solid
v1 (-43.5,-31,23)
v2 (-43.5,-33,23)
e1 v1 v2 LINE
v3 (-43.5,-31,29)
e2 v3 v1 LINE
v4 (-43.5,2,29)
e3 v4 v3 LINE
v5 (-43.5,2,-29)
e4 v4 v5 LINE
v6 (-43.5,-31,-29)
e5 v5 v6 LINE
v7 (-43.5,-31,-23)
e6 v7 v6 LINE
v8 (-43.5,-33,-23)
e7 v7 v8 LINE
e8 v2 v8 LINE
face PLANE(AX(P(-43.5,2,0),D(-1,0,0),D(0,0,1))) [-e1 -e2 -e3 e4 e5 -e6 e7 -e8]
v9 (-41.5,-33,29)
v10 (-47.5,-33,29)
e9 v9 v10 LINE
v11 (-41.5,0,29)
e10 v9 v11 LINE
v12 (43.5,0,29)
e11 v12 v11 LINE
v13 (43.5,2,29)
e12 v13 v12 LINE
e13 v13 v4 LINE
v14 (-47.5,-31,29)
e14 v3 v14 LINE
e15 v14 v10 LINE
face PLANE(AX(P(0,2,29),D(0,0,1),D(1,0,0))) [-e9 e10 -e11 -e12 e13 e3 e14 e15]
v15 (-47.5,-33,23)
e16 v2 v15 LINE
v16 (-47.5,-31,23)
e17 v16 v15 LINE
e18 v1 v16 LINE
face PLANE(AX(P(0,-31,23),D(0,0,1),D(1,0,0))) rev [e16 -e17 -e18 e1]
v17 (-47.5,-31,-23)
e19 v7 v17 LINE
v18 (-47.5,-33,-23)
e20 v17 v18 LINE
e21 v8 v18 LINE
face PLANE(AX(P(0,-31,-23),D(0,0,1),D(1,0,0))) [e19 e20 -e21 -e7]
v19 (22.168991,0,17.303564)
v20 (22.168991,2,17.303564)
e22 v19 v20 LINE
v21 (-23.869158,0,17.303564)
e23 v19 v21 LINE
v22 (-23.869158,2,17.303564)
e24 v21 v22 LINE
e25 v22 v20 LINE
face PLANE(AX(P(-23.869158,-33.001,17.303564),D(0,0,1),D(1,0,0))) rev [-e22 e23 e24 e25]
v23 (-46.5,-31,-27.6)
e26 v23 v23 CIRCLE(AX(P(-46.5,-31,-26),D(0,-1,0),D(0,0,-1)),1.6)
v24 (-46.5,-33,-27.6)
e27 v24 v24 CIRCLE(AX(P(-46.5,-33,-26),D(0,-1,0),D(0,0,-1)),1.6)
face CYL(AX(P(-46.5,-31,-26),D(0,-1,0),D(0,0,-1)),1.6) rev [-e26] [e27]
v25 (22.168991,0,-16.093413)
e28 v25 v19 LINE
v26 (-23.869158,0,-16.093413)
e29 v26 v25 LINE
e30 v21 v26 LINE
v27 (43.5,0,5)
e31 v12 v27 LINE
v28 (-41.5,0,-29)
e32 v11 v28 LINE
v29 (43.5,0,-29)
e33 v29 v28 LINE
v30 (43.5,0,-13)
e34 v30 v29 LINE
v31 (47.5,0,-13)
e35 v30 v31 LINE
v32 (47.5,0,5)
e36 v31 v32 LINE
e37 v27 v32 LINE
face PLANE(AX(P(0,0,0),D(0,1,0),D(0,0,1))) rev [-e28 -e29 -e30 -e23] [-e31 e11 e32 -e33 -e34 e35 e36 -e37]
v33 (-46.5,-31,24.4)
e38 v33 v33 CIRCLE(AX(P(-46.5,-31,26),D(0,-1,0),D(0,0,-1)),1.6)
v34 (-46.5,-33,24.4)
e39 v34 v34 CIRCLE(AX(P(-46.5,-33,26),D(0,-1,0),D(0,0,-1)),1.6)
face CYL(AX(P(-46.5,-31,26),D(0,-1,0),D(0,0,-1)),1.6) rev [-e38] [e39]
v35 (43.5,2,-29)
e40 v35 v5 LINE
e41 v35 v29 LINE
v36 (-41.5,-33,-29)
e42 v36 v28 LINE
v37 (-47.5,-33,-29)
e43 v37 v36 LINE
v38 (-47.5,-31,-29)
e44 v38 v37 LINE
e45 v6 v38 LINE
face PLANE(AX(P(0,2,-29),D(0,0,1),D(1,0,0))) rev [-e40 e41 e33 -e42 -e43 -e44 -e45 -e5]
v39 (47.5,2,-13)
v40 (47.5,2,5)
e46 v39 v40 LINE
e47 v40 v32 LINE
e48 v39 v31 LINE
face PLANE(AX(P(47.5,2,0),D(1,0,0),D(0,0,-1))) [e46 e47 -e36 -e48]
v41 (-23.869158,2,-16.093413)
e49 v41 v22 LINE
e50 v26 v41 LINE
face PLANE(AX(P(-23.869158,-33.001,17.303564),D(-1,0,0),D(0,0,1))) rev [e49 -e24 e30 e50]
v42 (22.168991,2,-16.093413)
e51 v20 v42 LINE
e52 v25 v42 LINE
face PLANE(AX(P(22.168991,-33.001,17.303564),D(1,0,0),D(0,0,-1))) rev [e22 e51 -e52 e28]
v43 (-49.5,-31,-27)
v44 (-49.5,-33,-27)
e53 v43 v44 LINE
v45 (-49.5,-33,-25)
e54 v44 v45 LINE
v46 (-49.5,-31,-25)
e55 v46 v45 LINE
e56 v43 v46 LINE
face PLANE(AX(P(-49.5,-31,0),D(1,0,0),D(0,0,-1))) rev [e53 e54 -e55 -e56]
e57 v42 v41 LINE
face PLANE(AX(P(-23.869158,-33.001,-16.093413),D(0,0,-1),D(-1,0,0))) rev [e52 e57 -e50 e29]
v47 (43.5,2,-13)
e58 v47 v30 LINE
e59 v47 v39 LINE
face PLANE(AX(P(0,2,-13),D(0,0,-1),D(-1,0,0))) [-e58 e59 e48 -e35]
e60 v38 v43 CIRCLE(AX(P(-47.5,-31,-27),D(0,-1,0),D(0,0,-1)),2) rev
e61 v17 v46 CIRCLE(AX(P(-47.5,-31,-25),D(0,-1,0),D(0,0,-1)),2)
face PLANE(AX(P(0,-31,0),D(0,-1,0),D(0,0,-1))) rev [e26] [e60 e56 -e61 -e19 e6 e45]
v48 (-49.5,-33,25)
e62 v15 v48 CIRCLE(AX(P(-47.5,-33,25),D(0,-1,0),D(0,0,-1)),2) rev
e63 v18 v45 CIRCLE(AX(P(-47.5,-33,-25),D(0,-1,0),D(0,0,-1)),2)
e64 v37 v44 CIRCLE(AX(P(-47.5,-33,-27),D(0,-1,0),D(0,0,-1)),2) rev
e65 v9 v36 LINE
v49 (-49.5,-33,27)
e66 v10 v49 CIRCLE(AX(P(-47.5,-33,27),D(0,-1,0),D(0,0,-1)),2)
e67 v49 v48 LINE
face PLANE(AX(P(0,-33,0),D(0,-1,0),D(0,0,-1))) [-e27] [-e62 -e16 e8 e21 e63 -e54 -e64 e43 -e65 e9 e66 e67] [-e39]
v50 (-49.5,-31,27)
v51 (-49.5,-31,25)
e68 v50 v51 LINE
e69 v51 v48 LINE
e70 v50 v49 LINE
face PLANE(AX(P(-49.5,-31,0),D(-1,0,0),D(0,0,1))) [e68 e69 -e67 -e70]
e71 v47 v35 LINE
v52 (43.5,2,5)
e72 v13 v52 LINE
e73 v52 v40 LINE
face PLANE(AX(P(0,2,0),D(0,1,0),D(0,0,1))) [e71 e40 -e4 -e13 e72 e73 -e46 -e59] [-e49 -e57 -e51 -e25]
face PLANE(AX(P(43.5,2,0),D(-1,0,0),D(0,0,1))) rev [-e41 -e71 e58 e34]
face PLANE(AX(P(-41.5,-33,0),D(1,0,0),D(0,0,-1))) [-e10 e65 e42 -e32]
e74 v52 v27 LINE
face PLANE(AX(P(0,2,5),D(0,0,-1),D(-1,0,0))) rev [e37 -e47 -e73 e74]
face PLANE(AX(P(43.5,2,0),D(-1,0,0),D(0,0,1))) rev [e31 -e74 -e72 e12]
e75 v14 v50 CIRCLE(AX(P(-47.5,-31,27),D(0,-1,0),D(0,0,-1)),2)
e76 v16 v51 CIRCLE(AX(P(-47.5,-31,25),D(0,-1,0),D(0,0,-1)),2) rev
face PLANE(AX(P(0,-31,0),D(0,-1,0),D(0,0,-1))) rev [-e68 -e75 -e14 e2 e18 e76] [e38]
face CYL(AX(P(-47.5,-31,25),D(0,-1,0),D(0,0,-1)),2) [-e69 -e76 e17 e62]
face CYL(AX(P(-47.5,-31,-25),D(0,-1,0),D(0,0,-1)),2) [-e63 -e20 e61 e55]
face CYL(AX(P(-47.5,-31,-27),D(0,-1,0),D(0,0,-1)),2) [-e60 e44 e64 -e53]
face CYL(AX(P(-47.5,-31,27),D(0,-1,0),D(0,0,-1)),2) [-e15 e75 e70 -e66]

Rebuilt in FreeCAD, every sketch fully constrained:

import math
import FreeCAD as App
import Part
import Sketcher

doc = App.newDocument("Part")
params = doc.addObject("Spreadsheet::Sheet", "Params")
for row, (alias, value) in enumerate([
    ("sketch1_width", "87 mm"),
    ("sketch1_width2", "4 mm"),
    ("sketch1_height", "58 mm"),
    ("sketch1_height2", "24 mm"),
    ("sketch1_height3", "18 mm"),
    ("pad1_length", "2 mm"),
    ("sketch2_width", "2 mm"),
    ("sketch2_height", "58 mm"),
    ("pad2_length", "33 mm"),
    ("sketch3_radius", "2 mm"),
    ("sketch3_diameter", "3.2 mm"),
    ("sketch3_width", "4 mm"),
    ("sketch3_width2", "6 mm"),
    ("sketch3_height", "46 mm"),
    ("pad3_length", "2 mm"),
], start=1):
    params.set(f"A{row}", alias)
    params.set(f"B{row}", "=" + value)
    params.setAlias(f"B{row}", alias)

body = doc.addObject("PartDesign::Body", "Body")

# Sketch on XZ plane
sketch1 = body.newObject("Sketcher::SketchObject", "Sketch")
sketch1.AttachmentSupport = (doc.getObject("XZ_Plane"), [""])
sketch1.MapMode = "FlatFace"
sketch1.addGeometry(Part.LineSegment(App.Vector(-43.5, -29, 0), App.Vector(-43.5, 29, 0)), False)
sketch1.addGeometry(Part.LineSegment(App.Vector(-43.5, 29, 0), App.Vector(43.5, 29, 0)), False)
sketch1.addGeometry(Part.LineSegment(App.Vector(43.5, 29, 0), App.Vector(43.5, 5, 0)), False)
sketch1.addGeometry(Part.LineSegment(App.Vector(43.5, 5, 0), App.Vector(47.5, 5, 0)), False)
sketch1.addGeometry(Part.LineSegment(App.Vector(47.5, 5, 0), App.Vector(47.5, -13, 0)), False)
sketch1.addGeometry(Part.LineSegment(App.Vector(47.5, -13, 0), App.Vector(43.5, -13, 0)), False)
sketch1.addGeometry(Part.LineSegment(App.Vector(43.5, -13, 0), App.Vector(43.5, -29, 0)), False)
sketch1.addGeometry(Part.LineSegment(App.Vector(43.5, -29, 0), App.Vector(-43.5, -29, 0)), False)
sketch1.addConstraint(Sketcher.Constraint("Coincident", 0, 2, 1, 1))
sketch1.addConstraint(Sketcher.Constraint("Coincident", 1, 2, 2, 1))
sketch1.addConstraint(Sketcher.Constraint("Coincident", 2, 2, 3, 1))
sketch1.addConstraint(Sketcher.Constraint("Coincident", 3, 2, 4, 1))
sketch1.addConstraint(Sketcher.Constraint("Coincident", 4, 2, 5, 1))
sketch1.addConstraint(Sketcher.Constraint("Coincident", 5, 2, 6, 1))
sketch1.addConstraint(Sketcher.Constraint("Coincident", 6, 2, 7, 1))
sketch1.addConstraint(Sketcher.Constraint("Coincident", 7, 2, 0, 1))
sketch1.addConstraint(Sketcher.Constraint("Vertical", 0))
sketch1.addConstraint(Sketcher.Constraint("Horizontal", 1))
sketch1.addConstraint(Sketcher.Constraint("Vertical", 2))
sketch1.addConstraint(Sketcher.Constraint("Horizontal", 3))
sketch1.addConstraint(Sketcher.Constraint("Vertical", 4))
sketch1.addConstraint(Sketcher.Constraint("Horizontal", 5))
sketch1.addConstraint(Sketcher.Constraint("Vertical", 6))
sketch1.addConstraint(Sketcher.Constraint("Horizontal", 7))
sketch1.addConstraint(Sketcher.Constraint("Symmetric", 0, 2, 6, 2, -1, 1))
sketch1.addConstraint(Sketcher.Constraint("Vertical", 2, 2, 5, 2))
sketch1.addConstraint(Sketcher.Constraint("DistanceX", 1, 1, 1, 2, 87.0))
sketch1.addConstraint(Sketcher.Constraint("DistanceX", 3, 1, 3, 2, 4.0))
sketch1.addConstraint(Sketcher.Constraint("DistanceY", 0, 1, 0, 2, 58.0))
sketch1.addConstraint(Sketcher.Constraint("DistanceY", 2, 2, 2, 1, 24.0))
sketch1.addConstraint(Sketcher.Constraint("DistanceY", 4, 2, 4, 1, 18.0))
sketch1.setExpression("Constraints[18]", "Params.sketch1_width")
sketch1.setExpression("Constraints[19]", "Params.sketch1_width2")
sketch1.setExpression("Constraints[20]", "Params.sketch1_height")
sketch1.setExpression("Constraints[21]", "Params.sketch1_height2")
sketch1.setExpression("Constraints[22]", "Params.sketch1_height3")
pad1 = body.newObject("PartDesign::Pad", "Pad")
pad1.Profile = sketch1
pad1.setExpression("Length", "Params.pad1_length")
pad1.Reversed = True

# Sketch on XZ plane
sketch2 = body.newObject("Sketcher::SketchObject", "Sketch001")
sketch2.AttachmentSupport = (doc.getObject("XZ_Plane"), [""])
sketch2.MapMode = "FlatFace"
sketch2.addGeometry(Part.LineSegment(App.Vector(-43.5, 29, 0), App.Vector(-43.5, -29, 0)), False)
sketch2.addGeometry(Part.LineSegment(App.Vector(-43.5, -29, 0), App.Vector(-41.5, -29, 0)), False)
sketch2.addGeometry(Part.LineSegment(App.Vector(-41.5, -29, 0), App.Vector(-41.5, 29, 0)), False)
sketch2.addGeometry(Part.LineSegment(App.Vector(-41.5, 29, 0), App.Vector(-43.5, 29, 0)), False)
sketch2.addConstraint(Sketcher.Constraint("Coincident", 0, 2, 1, 1))
sketch2.addConstraint(Sketcher.Constraint("Coincident", 1, 2, 2, 1))
sketch2.addConstraint(Sketcher.Constraint("Coincident", 2, 2, 3, 1))
sketch2.addConstraint(Sketcher.Constraint("Coincident", 3, 2, 0, 1))
sketch2.addConstraint(Sketcher.Constraint("Vertical", 0))
sketch2.addConstraint(Sketcher.Constraint("Horizontal", 1))
sketch2.addConstraint(Sketcher.Constraint("Vertical", 2))
sketch2.addConstraint(Sketcher.Constraint("Horizontal", 3))
sketch2.addConstraint(Sketcher.Constraint("DistanceX", 1, 1, 1, 2, 2.0))
sketch2.addConstraint(Sketcher.Constraint("DistanceY", 0, 2, 0, 1, 58.0))
sketch2.addConstraint(Sketcher.Constraint("DistanceY", 0, 2, -1, 1, 29.0))
sketch2.addConstraint(Sketcher.Constraint("DistanceX", 0, 2, -1, 1, 43.5))
sketch2.setExpression("Constraints[8]", "Params.sketch2_width")
sketch2.setExpression("Constraints[9]", "Params.sketch2_height")
pad2 = body.newObject("PartDesign::Pad", "Pad001")
pad2.Profile = sketch2
pad2.setExpression("Length", "Params.pad2_length")

# Sketch on XZ plane
sketch3 = body.newObject("Sketcher::SketchObject", "Sketch002")
sketch3.AttachmentSupport = (doc.getObject("XZ_Plane"), [""])
sketch3.MapMode = "FlatFace"
sketch3.AttachmentOffset = App.Placement(App.Vector(0, 0, 33), App.Rotation())
sketch3.addGeometry(Part.LineSegment(App.Vector(-47.5, 23, 0), App.Vector(-43.5, 23, 0)), False)
sketch3.addGeometry(Part.LineSegment(App.Vector(-43.5, 23, 0), App.Vector(-43.5, -23, 0)), False)
sketch3.addGeometry(Part.LineSegment(App.Vector(-43.5, -23, 0), App.Vector(-47.5, -23, 0)), False)
sketch3.addGeometry(Part.ArcOfCircle(Part.Circle(App.Vector(-47.5, -25, 0), App.Vector(0, 0, 1), 2), math.radians(90), math.radians(180)), False)
sketch3.addGeometry(Part.LineSegment(App.Vector(-49.5, -25, 0), App.Vector(-49.5, -27, 0)), False)
sketch3.addGeometry(Part.ArcOfCircle(Part.Circle(App.Vector(-47.5, -27, 0), App.Vector(0, 0, 1), 2), math.radians(-180), math.radians(-90)), False)
sketch3.addGeometry(Part.LineSegment(App.Vector(-47.5, -29, 0), App.Vector(-41.5, -29, 0)), False)
sketch3.addGeometry(Part.LineSegment(App.Vector(-41.5, -29, 0), App.Vector(-41.5, 29, 0)), False)
sketch3.addGeometry(Part.LineSegment(App.Vector(-41.5, 29, 0), App.Vector(-47.5, 29, 0)), False)
sketch3.addGeometry(Part.ArcOfCircle(Part.Circle(App.Vector(-47.5, 27, 0), App.Vector(0, 0, 1), 2), math.radians(90), math.radians(180)), False)
sketch3.addGeometry(Part.LineSegment(App.Vector(-49.5, 27, 0), App.Vector(-49.5, 25, 0)), False)
sketch3.addGeometry(Part.ArcOfCircle(Part.Circle(App.Vector(-47.5, 25, 0), App.Vector(0, 0, 1), 2), math.radians(-180), math.radians(-90)), False)
sketch3.addGeometry(Part.Circle(App.Vector(-46.5, 26, 0), App.Vector(0, 0, 1), 1.6), False)
sketch3.addGeometry(Part.Circle(App.Vector(-46.5, -26, 0), App.Vector(0, 0, 1), 1.6), False)
sketch3.addConstraint(Sketcher.Constraint("Coincident", 0, 2, 1, 1))
sketch3.addConstraint(Sketcher.Constraint("Coincident", 1, 2, 2, 1))
sketch3.addConstraint(Sketcher.Constraint("Tangent", 2, 2, 3, 1))
sketch3.addConstraint(Sketcher.Constraint("Tangent", 3, 2, 4, 1))
sketch3.addConstraint(Sketcher.Constraint("Tangent", 4, 2, 5, 1))
sketch3.addConstraint(Sketcher.Constraint("Tangent", 5, 2, 6, 1))
sketch3.addConstraint(Sketcher.Constraint("Coincident", 6, 2, 7, 1))
sketch3.addConstraint(Sketcher.Constraint("Coincident", 7, 2, 8, 1))
sketch3.addConstraint(Sketcher.Constraint("Tangent", 8, 2, 9, 1))
sketch3.addConstraint(Sketcher.Constraint("Tangent", 9, 2, 10, 1))
sketch3.addConstraint(Sketcher.Constraint("Tangent", 10, 2, 11, 1))
sketch3.addConstraint(Sketcher.Constraint("Tangent", 11, 2, 0, 1))
sketch3.addConstraint(Sketcher.Constraint("Horizontal", 0))
sketch3.addConstraint(Sketcher.Constraint("Vertical", 1))
sketch3.addConstraint(Sketcher.Constraint("Horizontal", 2))
sketch3.addConstraint(Sketcher.Constraint("Vertical", 4))
sketch3.addConstraint(Sketcher.Constraint("Horizontal", 6))
sketch3.addConstraint(Sketcher.Constraint("Vertical", 7))
sketch3.addConstraint(Sketcher.Constraint("Horizontal", 8))
sketch3.addConstraint(Sketcher.Constraint("Vertical", 10))
sketch3.addConstraint(Sketcher.Constraint("Equal", 3, 5))
sketch3.addConstraint(Sketcher.Constraint("Equal", 5, 9))
sketch3.addConstraint(Sketcher.Constraint("Equal", 9, 11))
sketch3.addConstraint(Sketcher.Constraint("Equal", 12, 13))
sketch3.addConstraint(Sketcher.Constraint("Symmetric", 5, 3, 9, 3, -1))
sketch3.addConstraint(Sketcher.Constraint("Symmetric", 12, 3, 13, 3, -1))
sketch3.addConstraint(Sketcher.Constraint("Equal", 4, 10))
sketch3.addConstraint(Sketcher.Constraint("Radius", 3, 2.0))
sketch3.addConstraint(Sketcher.Constraint("Diameter", 12, 3.2))
sketch3.addConstraint(Sketcher.Constraint("DistanceX", 0, 1, 0, 2, 4.0))
sketch3.addConstraint(Sketcher.Constraint("DistanceX", 6, 1, 6, 2, 6.0))
sketch3.addConstraint(Sketcher.Constraint("DistanceY", 1, 2, 1, 1, 46.0))
sketch3.addConstraint(Sketcher.Constraint("DistanceY", 4, 2, 4, 1, 2.0))
sketch3.addConstraint(Sketcher.Constraint("DistanceY", -1, 1, 12, 3, 26.0))
sketch3.addConstraint(Sketcher.Constraint("DistanceX", 9, 3, 12, 3, 1.0))
sketch3.addConstraint(Sketcher.Constraint("DistanceX", 3, 3, -1, 1, 47.5))
sketch3.setExpression("Constraints[27]", "Params.sketch3_radius")
sketch3.setExpression("Constraints[28]", "Params.sketch3_diameter")
sketch3.setExpression("Constraints[29]", "Params.sketch3_width")
sketch3.setExpression("Constraints[30]", "Params.sketch3_width2")
sketch3.setExpression("Constraints[31]", "Params.sketch3_height")
pad3 = body.newObject("PartDesign::Pad", "Pad002")
pad3.Profile = sketch3
pad3.setExpression("Length", "Params.pad3_length")
pad3.Reversed = True

# Sketch on XZ plane
sketch4 = body.newObject("Sketcher::SketchObject", "Sketch003")
sketch4.AttachmentSupport = (doc.getObject("XZ_Plane"), [""])
sketch4.MapMode = "FlatFace"
sketch4.AttachmentOffset = App.Placement(App.Vector(0, 0, -2), App.Rotation())
sketch4.addGeometry(Part.LineSegment(App.Vector(-23.869158, -16.093413, 0), App.Vector(-23.869158, 17.303564, 0)), False)
sketch4.addGeometry(Part.LineSegment(App.Vector(-23.869158, 17.303564, 0), App.Vector(22.168991, 17.303564, 0)), False)
sketch4.addGeometry(Part.LineSegment(App.Vector(22.168991, 17.303564, 0), App.Vector(22.168991, -16.093413, 0)), False)
sketch4.addGeometry(Part.LineSegment(App.Vector(22.168991, -16.093413, 0), App.Vector(-23.869158, -16.093413, 0)), False)
sketch4.addConstraint(Sketcher.Constraint("Coincident", 0, 2, 1, 1))
sketch4.addConstraint(Sketcher.Constraint("Coincident", 1, 2, 2, 1))
sketch4.addConstraint(Sketcher.Constraint("Coincident", 2, 2, 3, 1))
sketch4.addConstraint(Sketcher.Constraint("Coincident", 3, 2, 0, 1))
sketch4.addConstraint(Sketcher.Constraint("Vertical", 0))
sketch4.addConstraint(Sketcher.Constraint("Horizontal", 1))
sketch4.addConstraint(Sketcher.Constraint("Vertical", 2))
sketch4.addConstraint(Sketcher.Constraint("Horizontal", 3))
sketch4.addConstraint(Sketcher.Constraint("DistanceX", 1, 1, 1, 2, 46.038149))
sketch4.addConstraint(Sketcher.Constraint("DistanceY", 0, 1, 0, 2, 33.396976))
sketch4.addConstraint(Sketcher.Constraint("DistanceX", -1, 1, 1, 2, 22.168991))
sketch4.addConstraint(Sketcher.Constraint("DistanceY", -1, 1, 0, 2, 17.303564))
pocket1 = body.newObject("PartDesign::Pocket", "Pocket")
pocket1.Profile = sketch4
pocket1.Type = "UpToFirst"
pocket1.Reversed = True

doc.recompute()
